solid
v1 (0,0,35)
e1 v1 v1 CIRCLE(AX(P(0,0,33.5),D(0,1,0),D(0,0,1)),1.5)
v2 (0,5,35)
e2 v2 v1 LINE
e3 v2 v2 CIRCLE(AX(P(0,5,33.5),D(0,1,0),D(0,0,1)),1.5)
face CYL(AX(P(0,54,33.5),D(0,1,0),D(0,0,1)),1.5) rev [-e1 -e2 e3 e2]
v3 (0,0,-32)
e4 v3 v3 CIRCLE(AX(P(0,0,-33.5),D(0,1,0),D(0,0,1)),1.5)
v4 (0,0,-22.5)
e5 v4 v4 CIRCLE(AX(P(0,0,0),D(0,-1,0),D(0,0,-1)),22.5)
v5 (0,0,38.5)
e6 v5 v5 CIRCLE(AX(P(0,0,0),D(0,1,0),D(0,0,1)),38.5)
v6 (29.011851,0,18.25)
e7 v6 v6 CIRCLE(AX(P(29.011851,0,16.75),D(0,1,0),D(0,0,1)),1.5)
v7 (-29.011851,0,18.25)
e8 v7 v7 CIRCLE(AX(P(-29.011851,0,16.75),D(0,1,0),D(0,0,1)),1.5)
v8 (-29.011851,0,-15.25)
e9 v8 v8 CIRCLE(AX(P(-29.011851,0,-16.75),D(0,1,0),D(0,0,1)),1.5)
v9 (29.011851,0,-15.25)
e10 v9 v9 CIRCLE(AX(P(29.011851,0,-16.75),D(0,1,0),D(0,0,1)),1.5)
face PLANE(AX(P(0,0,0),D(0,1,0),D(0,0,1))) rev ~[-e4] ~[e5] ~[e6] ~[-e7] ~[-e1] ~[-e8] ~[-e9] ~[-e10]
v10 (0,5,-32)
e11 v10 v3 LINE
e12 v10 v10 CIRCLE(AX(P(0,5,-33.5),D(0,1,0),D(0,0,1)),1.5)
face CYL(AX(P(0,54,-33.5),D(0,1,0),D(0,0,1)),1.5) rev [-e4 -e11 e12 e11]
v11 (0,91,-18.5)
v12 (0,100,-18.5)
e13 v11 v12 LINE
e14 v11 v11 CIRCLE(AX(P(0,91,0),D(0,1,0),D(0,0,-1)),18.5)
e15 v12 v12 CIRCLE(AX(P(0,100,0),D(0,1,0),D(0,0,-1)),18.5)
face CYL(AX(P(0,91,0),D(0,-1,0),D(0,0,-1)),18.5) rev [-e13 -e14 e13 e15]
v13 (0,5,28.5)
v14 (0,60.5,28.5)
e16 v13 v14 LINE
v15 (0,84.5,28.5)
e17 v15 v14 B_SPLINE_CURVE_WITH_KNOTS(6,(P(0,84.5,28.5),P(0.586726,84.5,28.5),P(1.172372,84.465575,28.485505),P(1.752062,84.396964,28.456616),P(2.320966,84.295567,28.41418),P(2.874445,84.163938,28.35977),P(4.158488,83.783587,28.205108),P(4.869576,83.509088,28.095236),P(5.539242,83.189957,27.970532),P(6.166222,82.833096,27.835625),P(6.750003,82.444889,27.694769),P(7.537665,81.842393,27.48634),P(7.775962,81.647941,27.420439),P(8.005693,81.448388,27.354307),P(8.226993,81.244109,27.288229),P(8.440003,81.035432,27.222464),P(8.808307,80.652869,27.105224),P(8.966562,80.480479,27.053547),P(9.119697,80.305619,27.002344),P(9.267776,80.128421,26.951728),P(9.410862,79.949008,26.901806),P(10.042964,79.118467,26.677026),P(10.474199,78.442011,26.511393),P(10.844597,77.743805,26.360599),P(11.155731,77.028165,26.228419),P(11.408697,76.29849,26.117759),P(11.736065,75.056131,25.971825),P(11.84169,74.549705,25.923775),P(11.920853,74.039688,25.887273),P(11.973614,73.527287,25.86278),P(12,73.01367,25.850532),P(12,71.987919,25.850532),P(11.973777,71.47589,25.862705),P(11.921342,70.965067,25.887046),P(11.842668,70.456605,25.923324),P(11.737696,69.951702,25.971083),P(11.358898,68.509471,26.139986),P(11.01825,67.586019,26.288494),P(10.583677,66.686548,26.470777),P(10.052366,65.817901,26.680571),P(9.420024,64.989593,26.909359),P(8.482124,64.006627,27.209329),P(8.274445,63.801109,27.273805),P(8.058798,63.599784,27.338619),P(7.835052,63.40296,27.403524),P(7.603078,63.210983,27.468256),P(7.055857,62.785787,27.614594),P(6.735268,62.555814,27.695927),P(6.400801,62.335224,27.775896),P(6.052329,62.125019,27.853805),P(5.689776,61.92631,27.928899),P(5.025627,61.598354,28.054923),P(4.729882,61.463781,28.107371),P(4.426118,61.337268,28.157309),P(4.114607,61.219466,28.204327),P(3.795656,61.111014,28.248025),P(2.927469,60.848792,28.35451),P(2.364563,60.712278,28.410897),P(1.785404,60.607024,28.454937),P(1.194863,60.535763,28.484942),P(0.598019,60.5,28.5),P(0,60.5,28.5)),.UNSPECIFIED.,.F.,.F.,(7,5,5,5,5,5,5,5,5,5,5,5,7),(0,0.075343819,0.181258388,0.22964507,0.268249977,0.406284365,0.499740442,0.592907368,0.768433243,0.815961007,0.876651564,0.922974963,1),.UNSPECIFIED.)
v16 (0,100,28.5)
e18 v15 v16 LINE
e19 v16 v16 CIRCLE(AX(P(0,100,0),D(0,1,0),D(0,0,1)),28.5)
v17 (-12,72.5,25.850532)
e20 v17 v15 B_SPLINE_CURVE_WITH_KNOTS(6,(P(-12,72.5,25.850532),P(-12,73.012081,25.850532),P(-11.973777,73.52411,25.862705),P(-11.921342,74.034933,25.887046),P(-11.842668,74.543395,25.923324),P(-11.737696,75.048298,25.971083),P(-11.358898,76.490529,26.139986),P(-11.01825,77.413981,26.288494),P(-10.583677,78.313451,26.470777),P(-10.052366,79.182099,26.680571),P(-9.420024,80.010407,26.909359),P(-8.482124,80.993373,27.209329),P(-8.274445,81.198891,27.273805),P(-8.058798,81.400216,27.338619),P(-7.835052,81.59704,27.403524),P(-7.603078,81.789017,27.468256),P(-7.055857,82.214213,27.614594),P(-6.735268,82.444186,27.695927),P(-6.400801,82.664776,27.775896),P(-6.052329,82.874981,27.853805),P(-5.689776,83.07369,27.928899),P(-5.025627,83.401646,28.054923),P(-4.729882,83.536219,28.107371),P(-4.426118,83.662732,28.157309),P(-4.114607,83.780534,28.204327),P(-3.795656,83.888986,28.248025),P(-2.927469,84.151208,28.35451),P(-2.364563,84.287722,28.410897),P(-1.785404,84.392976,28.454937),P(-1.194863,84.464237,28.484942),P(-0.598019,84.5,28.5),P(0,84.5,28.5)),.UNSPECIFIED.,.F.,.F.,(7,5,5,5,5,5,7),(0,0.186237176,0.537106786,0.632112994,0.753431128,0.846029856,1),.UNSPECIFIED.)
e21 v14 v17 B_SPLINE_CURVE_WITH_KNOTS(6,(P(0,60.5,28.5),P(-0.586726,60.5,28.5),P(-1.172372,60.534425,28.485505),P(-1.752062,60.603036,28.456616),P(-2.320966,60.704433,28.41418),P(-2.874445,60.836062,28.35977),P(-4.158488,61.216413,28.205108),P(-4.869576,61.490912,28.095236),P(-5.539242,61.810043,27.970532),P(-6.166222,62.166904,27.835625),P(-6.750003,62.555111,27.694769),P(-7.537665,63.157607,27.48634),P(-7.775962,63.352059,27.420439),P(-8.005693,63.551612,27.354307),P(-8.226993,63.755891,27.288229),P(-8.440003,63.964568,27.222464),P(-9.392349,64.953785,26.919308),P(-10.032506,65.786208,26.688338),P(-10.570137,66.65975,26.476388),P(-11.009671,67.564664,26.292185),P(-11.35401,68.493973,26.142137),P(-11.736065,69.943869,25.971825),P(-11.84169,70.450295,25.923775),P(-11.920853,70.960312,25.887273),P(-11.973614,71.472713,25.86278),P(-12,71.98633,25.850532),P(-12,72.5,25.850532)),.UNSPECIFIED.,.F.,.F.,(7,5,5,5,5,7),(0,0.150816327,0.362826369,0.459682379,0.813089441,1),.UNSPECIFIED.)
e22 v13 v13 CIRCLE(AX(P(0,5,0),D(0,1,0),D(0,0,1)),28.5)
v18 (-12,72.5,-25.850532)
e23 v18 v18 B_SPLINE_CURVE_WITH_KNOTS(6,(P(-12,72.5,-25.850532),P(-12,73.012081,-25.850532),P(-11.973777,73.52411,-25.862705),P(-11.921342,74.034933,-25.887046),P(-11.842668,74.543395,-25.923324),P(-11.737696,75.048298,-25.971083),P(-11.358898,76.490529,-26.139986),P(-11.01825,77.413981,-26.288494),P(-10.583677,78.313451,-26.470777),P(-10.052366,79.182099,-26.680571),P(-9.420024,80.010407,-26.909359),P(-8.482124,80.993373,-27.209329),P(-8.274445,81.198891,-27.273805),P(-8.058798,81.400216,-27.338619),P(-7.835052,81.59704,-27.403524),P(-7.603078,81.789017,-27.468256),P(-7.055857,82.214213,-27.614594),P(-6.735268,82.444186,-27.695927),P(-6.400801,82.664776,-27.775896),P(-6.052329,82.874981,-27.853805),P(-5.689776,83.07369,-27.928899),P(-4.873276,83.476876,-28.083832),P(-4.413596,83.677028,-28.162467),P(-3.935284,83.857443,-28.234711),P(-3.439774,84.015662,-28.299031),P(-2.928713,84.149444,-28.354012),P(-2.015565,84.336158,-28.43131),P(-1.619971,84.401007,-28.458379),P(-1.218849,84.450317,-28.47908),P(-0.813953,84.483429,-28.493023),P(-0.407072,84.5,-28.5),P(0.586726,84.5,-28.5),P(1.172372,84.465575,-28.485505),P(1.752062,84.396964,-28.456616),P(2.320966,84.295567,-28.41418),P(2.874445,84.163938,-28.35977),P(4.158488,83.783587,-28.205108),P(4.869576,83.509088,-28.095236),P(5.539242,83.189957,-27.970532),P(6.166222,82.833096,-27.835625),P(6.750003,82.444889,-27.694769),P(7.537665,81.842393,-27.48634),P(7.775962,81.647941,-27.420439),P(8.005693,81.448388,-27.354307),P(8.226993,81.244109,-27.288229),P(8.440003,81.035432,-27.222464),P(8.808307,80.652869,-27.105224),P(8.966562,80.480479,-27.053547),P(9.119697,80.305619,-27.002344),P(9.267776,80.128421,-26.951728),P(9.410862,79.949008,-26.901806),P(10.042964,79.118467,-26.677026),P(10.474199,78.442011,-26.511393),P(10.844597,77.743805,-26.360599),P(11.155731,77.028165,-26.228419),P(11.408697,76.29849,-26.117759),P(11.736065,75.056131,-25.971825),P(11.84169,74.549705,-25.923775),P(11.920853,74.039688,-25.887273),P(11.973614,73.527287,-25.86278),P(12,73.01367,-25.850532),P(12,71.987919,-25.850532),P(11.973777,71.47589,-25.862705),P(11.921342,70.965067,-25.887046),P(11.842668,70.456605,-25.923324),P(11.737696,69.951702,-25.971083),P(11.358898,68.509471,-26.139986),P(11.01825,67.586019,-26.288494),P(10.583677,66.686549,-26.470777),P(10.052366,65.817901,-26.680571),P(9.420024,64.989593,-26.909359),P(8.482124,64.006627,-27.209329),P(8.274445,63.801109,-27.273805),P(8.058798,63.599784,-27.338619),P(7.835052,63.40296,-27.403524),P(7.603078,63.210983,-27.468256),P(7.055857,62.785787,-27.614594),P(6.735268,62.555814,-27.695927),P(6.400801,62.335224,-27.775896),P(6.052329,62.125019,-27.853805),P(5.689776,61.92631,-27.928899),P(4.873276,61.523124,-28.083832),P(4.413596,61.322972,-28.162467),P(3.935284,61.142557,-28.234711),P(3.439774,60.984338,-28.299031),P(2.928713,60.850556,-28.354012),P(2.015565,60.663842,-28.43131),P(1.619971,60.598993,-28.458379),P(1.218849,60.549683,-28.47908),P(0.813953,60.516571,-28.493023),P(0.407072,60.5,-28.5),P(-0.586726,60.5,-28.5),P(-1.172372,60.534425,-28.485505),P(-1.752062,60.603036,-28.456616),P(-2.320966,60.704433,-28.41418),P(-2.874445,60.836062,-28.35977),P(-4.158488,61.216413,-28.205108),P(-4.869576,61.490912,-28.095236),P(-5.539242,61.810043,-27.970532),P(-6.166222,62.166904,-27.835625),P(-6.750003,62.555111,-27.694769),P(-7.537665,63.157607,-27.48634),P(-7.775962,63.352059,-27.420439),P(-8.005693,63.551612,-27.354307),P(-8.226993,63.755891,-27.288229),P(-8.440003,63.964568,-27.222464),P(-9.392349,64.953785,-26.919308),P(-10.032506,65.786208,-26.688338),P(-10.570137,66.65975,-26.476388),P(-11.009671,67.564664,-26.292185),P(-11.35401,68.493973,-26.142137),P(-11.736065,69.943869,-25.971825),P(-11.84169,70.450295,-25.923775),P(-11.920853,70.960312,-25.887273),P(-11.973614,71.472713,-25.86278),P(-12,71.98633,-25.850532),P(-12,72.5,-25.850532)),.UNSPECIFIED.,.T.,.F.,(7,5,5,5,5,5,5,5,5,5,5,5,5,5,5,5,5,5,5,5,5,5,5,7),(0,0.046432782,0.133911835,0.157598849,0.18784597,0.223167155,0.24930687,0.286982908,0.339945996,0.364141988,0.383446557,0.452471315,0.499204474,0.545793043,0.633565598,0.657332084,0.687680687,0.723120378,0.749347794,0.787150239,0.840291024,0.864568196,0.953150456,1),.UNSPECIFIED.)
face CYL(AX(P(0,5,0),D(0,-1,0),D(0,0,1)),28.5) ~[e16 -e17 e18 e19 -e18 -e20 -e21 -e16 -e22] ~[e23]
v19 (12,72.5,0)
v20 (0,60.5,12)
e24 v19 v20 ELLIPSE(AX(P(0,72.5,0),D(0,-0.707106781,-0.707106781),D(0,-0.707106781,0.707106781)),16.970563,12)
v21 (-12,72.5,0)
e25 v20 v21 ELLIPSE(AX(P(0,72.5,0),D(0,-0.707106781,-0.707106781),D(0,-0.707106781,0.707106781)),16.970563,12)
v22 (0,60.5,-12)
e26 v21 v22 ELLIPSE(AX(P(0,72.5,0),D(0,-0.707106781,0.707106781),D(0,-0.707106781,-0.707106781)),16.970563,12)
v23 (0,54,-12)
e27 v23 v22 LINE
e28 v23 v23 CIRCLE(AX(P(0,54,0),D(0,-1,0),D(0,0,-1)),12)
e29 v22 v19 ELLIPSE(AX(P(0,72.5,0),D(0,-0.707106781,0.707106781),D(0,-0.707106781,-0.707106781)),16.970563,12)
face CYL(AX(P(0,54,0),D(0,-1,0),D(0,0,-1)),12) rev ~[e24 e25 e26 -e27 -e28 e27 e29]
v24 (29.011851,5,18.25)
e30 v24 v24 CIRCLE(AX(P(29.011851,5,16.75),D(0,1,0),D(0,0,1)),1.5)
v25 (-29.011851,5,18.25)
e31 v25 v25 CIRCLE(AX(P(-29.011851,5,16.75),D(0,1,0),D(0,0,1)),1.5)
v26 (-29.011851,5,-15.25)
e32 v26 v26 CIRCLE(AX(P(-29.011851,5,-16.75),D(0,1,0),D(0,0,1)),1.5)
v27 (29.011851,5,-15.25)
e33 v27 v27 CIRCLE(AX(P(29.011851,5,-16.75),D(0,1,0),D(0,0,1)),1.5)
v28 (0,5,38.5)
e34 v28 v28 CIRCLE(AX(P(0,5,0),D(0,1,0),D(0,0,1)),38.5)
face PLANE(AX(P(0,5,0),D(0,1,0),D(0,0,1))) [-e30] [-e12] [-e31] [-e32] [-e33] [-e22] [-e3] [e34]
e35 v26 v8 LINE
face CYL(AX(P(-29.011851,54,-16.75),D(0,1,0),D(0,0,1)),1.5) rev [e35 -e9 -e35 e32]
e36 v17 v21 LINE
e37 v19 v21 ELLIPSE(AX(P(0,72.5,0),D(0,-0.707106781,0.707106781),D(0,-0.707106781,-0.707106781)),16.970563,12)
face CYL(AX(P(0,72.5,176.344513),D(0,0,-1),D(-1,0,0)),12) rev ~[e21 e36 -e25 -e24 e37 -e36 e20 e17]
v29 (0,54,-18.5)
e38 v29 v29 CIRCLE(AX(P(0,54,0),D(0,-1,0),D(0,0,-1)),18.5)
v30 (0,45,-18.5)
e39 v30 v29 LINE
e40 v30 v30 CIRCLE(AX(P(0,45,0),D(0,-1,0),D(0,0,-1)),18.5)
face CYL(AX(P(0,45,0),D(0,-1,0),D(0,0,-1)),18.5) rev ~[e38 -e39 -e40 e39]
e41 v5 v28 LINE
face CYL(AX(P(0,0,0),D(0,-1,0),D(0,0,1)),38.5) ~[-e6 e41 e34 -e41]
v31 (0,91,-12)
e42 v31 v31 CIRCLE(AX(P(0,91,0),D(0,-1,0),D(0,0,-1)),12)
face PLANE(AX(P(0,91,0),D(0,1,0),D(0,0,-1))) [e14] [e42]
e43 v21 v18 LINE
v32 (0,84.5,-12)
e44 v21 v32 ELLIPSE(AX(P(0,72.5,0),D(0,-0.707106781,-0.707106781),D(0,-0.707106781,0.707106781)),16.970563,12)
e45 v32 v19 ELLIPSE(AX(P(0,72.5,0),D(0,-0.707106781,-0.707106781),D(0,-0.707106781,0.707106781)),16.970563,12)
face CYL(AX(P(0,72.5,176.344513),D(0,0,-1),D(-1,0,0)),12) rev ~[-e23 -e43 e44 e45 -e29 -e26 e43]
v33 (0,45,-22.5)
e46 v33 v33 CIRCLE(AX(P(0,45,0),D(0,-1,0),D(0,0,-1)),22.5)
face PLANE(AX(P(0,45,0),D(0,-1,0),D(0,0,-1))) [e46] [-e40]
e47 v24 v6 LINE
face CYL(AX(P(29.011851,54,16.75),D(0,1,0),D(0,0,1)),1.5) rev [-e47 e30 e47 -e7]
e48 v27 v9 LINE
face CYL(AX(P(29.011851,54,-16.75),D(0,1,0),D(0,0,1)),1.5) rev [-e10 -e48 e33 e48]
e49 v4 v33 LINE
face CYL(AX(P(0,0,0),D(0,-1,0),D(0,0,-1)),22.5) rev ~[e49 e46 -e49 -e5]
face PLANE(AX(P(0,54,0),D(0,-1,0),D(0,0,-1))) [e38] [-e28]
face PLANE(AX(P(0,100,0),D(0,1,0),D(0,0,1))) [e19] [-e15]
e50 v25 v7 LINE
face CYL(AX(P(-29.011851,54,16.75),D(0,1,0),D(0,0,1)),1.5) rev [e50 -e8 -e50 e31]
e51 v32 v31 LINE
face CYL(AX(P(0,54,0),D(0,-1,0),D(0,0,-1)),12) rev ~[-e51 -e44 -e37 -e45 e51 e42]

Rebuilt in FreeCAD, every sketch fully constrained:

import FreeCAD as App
import Part
import Sketcher

V = App.Vector
Q = App.Units.Quantity

doc = App.newDocument("Part")
body = doc.addObject("PartDesign::Body", "Body")

# Sketch on XZ plane
sketch1 = doc.addObject("Sketcher::SketchObject", "Sketch")
body.addObject(sketch1)
sketch1.AttachmentSupport = (doc.XZ_Plane, [""])
sketch1.MapMode = "FlatFace"
sketch1.addGeometry(Part.Circle(V(0, 0, 0), V(0, 0, 1), 38), False)
sketch1.addConstraint(Sketcher.Constraint("Coincident", 0, 3, -1, 1))
sketch1.addConstraint(Sketcher.Constraint("Diameter", 0, Q("77 mm")))
pad1 = doc.addObject("PartDesign::Pad", "Pad")
body.addObject(pad1)
pad1.Profile = sketch1
pad1.Length = 100
pad1.Reversed = True

# Sketch on XZ plane
sketch2 = doc.addObject("Sketcher::SketchObject", "Sketch001")
body.addObject(sketch2)
sketch2.AttachmentSupport = (doc.XZ_Plane, [""])
sketch2.MapMode = "FlatFace"
sketch2.AttachmentOffset = App.Placement(V(0, 0, -5), App.Rotation())
sketch2.addGeometry(Part.Circle(V(0, 0, 0), V(0, 0, 1), 38), False)
sketch2.addGeometry(Part.Circle(V(0, 0, 0), V(0, 0, 1), 28), False)
sketch2.addConstraint(Sketcher.Constraint("Coincident", 0, 3, -1, 1))
sketch2.addConstraint(Sketcher.Constraint("Coincident", 1, 3, -1, 1))
sketch2.addConstraint(Sketcher.Constraint("Diameter", 0, Q("77 mm")))
sketch2.addConstraint(Sketcher.Constraint("Diameter", 1, Q("57 mm")))
pocket1 = doc.addObject("PartDesign::Pocket", "Pocket")
body.addObject(pocket1)
pocket1.Profile = sketch2
pocket1.Length = 95

# Sketch on XZ plane
sketch3 = doc.addObject("Sketcher::SketchObject", "Sketch002")
body.addObject(sketch3)
sketch3.AttachmentSupport = (doc.XZ_Plane, [""])
sketch3.MapMode = "FlatFace"
sketch3.addGeometry(Part.Circle(V(0, 0, 0), V(0, 0, 1), 22), False)
sketch3.addConstraint(Sketcher.Constraint("Coincident", 0, 3, -1, 1))
sketch3.addConstraint(Sketcher.Constraint("Diameter", 0, Q("45 mm")))
pocket2 = doc.addObject("PartDesign::Pocket", "Pocket001")
body.addObject(pocket2)
pocket2.Profile = sketch3
pocket2.Length = 45

# Sketch on XZ plane
sketch4 = doc.addObject("Sketcher::SketchObject", "Sketch003")
body.addObject(sketch4)
sketch4.AttachmentSupport = (doc.XZ_Plane, [""])
sketch4.MapMode = "FlatFace"
sketch4.AttachmentOffset = App.Placement(V(0, 0, -45), App.Rotation())
sketch4.addGeometry(Part.Circle(V(0, 0, 0), V(0, 0, 1), 18), False)
sketch4.addConstraint(Sketcher.Constraint("Coincident", 0, 3, -1, 1))
sketch4.addConstraint(Sketcher.Constraint("Diameter", 0, Q("37 mm")))
pocket3 = doc.addObject("PartDesign::Pocket", "Pocket002")
body.addObject(pocket3)
pocket3.Profile = sketch4
pocket3.Length = 9

# Sketch on XZ plane
sketch5 = doc.addObject("Sketcher::SketchObject", "Sketch004")
body.addObject(sketch5)
sketch5.AttachmentSupport = (doc.XZ_Plane, [""])
sketch5.MapMode = "FlatFace"
sketch5.AttachmentOffset = App.Placement(V(0, 0, -54), App.Rotation())
sketch5.addGeometry(Part.Circle(V(0, 0, 0), V(0, 0, 1), 12), False)
sketch5.addConstraint(Sketcher.Constraint("Coincident", 0, 3, -1, 1))
sketch5.addConstraint(Sketcher.Constraint("Diameter", 0, Q("24 mm")))
pocket4 = doc.addObject("PartDesign::Pocket", "Pocket003")
body.addObject(pocket4)
pocket4.Profile = sketch5
pocket4.Type = "ThroughAll"

# Sketch on XY plane
sketch6 = doc.addObject("Sketcher::SketchObject", "Sketch005")
body.addObject(sketch6)
sketch6.AttachmentSupport = (doc.XY_Plane, [""])
sketch6.MapMode = "FlatFace"
sketch6.AttachmentOffset = App.Placement(V(0, 0, 28.5), App.Rotation())
sketch6.addGeometry(Part.Circle(V(0, 72, 0), V(0, 0, 1), 12), False)
sketch6.addConstraint(Sketcher.Constraint("PointOnObject", 0, 3, -2))
sketch6.addConstraint(Sketcher.Constraint("Diameter", 0, Q("24 mm")))
sketch6.addConstraint(Sketcher.Constraint("DistanceY", -1, 1, 0, 3, Q("72.5 mm")))
doc.recompute()
hole = doc.addObject("PartDesign::Hole", "Hole")
body.addObject(hole)
hole.Profile = sketch6
hole.ThreadType = "None"
hole.Diameter = 24
hole.DepthType = "ThroughAll"

# Sketch on XZ plane
sketch7 = doc.addObject("Sketcher::SketchObject", "Sketch006")
body.addObject(sketch7)
sketch7.AttachmentSupport = (doc.XZ_Plane, [""])
sketch7.MapMode = "FlatFace"
sketch7.AttachmentOffset = App.Placement(V(0, 0, -54), App.Rotation())
sketch7.addGeometry(Part.Circle(V(0, 33.5, 0), V(0, 0, 1), 1.5), False)
sketch7.addGeometry(Part.Circle(V(29, 16.8, 0), V(0, 0, 1), 1.5), False)
sketch7.addGeometry(Part.Circle(V(29, -16.8, 0), V(0, 0, 1), 1.5), False)
sketch7.addGeometry(Part.Circle(V(0, -33.5, 0), V(0, 0, 1), 1.5), False)
sketch7.addGeometry(Part.Circle(V(-29, -16.8, 0), V(0, 0, 1), 1.5), False)
sketch7.addGeometry(Part.Circle(V(-29, 16.8, 0), V(0, 0, 1), 1.5), False)
sketch7.addConstraint(Sketcher.Constraint("Equal", 0, 1))
sketch7.addConstraint(Sketcher.Constraint("Equal", 1, 2))
sketch7.addConstraint(Sketcher.Constraint("Equal", 2, 3))
sketch7.addConstraint(Sketcher.Constraint("Equal", 3, 4))
sketch7.addConstraint(Sketcher.Constraint("Equal", 4, 5))
sketch7.addConstraint(Sketcher.Constraint("Symmetric", 0, 3, 3, 3, -1, 1))
sketch7.addConstraint(Sketcher.Constraint("Symmetric", 1, 3, 4, 3, -1, 1))
sketch7.addConstraint(Sketcher.Constraint("Symmetric", 2, 3, 5, 3, -1, 1))
sketch7.addConstraint(Sketcher.Constraint("Symmetric", 2, 3, 4, 3, -2))
sketch7.addConstraint(Sketcher.Constraint("PointOnObject", 0, 3, -2))
sketch7.addConstraint(Sketcher.Constraint("Diameter", 0, Q("3 mm")))
sketch7.addConstraint(Sketcher.Constraint("DistanceY", 3, 3, 0, 3, Q("67 mm")))
sketch7.addConstraint(Sketcher.Constraint("DistanceY", 2, 3, 1, 3, Q("33.5 mm")))
sketch7.addConstraint(Sketcher.Constraint("DistanceX", -1, 1, 1, 3, Q("29.011851 mm")))
pocket5 = doc.addObject("PartDesign::Pocket", "Pocket004")
body.addObject(pocket5)
pocket5.Profile = sketch7
pocket5.Type = "ThroughAll"
pocket5.Reversed = True

# Sketch on XZ plane
sketch8 = doc.addObject("Sketcher::SketchObject", "Sketch007")
body.addObject(sketch8)
sketch8.AttachmentSupport = (doc.XZ_Plane, [""])
sketch8.MapMode = "FlatFace"
sketch8.AttachmentOffset = App.Placement(V(0, 0, -91), App.Rotation())
sketch8.addGeometry(Part.Circle(V(0, 0, 0), V(0, 0, 1), 18), False)
sketch8.addConstraint(Sketcher.Constraint("Coincident", 0, 3, -1, 1))
sketch8.addConstraint(Sketcher.Constraint("Diameter", 0, Q("37 mm")))
pocket6 = doc.addObject("PartDesign::Pocket", "Pocket005")
body.addObject(pocket6)
pocket6.Profile = sketch8
pocket6.Length = 9

doc.recompute()
